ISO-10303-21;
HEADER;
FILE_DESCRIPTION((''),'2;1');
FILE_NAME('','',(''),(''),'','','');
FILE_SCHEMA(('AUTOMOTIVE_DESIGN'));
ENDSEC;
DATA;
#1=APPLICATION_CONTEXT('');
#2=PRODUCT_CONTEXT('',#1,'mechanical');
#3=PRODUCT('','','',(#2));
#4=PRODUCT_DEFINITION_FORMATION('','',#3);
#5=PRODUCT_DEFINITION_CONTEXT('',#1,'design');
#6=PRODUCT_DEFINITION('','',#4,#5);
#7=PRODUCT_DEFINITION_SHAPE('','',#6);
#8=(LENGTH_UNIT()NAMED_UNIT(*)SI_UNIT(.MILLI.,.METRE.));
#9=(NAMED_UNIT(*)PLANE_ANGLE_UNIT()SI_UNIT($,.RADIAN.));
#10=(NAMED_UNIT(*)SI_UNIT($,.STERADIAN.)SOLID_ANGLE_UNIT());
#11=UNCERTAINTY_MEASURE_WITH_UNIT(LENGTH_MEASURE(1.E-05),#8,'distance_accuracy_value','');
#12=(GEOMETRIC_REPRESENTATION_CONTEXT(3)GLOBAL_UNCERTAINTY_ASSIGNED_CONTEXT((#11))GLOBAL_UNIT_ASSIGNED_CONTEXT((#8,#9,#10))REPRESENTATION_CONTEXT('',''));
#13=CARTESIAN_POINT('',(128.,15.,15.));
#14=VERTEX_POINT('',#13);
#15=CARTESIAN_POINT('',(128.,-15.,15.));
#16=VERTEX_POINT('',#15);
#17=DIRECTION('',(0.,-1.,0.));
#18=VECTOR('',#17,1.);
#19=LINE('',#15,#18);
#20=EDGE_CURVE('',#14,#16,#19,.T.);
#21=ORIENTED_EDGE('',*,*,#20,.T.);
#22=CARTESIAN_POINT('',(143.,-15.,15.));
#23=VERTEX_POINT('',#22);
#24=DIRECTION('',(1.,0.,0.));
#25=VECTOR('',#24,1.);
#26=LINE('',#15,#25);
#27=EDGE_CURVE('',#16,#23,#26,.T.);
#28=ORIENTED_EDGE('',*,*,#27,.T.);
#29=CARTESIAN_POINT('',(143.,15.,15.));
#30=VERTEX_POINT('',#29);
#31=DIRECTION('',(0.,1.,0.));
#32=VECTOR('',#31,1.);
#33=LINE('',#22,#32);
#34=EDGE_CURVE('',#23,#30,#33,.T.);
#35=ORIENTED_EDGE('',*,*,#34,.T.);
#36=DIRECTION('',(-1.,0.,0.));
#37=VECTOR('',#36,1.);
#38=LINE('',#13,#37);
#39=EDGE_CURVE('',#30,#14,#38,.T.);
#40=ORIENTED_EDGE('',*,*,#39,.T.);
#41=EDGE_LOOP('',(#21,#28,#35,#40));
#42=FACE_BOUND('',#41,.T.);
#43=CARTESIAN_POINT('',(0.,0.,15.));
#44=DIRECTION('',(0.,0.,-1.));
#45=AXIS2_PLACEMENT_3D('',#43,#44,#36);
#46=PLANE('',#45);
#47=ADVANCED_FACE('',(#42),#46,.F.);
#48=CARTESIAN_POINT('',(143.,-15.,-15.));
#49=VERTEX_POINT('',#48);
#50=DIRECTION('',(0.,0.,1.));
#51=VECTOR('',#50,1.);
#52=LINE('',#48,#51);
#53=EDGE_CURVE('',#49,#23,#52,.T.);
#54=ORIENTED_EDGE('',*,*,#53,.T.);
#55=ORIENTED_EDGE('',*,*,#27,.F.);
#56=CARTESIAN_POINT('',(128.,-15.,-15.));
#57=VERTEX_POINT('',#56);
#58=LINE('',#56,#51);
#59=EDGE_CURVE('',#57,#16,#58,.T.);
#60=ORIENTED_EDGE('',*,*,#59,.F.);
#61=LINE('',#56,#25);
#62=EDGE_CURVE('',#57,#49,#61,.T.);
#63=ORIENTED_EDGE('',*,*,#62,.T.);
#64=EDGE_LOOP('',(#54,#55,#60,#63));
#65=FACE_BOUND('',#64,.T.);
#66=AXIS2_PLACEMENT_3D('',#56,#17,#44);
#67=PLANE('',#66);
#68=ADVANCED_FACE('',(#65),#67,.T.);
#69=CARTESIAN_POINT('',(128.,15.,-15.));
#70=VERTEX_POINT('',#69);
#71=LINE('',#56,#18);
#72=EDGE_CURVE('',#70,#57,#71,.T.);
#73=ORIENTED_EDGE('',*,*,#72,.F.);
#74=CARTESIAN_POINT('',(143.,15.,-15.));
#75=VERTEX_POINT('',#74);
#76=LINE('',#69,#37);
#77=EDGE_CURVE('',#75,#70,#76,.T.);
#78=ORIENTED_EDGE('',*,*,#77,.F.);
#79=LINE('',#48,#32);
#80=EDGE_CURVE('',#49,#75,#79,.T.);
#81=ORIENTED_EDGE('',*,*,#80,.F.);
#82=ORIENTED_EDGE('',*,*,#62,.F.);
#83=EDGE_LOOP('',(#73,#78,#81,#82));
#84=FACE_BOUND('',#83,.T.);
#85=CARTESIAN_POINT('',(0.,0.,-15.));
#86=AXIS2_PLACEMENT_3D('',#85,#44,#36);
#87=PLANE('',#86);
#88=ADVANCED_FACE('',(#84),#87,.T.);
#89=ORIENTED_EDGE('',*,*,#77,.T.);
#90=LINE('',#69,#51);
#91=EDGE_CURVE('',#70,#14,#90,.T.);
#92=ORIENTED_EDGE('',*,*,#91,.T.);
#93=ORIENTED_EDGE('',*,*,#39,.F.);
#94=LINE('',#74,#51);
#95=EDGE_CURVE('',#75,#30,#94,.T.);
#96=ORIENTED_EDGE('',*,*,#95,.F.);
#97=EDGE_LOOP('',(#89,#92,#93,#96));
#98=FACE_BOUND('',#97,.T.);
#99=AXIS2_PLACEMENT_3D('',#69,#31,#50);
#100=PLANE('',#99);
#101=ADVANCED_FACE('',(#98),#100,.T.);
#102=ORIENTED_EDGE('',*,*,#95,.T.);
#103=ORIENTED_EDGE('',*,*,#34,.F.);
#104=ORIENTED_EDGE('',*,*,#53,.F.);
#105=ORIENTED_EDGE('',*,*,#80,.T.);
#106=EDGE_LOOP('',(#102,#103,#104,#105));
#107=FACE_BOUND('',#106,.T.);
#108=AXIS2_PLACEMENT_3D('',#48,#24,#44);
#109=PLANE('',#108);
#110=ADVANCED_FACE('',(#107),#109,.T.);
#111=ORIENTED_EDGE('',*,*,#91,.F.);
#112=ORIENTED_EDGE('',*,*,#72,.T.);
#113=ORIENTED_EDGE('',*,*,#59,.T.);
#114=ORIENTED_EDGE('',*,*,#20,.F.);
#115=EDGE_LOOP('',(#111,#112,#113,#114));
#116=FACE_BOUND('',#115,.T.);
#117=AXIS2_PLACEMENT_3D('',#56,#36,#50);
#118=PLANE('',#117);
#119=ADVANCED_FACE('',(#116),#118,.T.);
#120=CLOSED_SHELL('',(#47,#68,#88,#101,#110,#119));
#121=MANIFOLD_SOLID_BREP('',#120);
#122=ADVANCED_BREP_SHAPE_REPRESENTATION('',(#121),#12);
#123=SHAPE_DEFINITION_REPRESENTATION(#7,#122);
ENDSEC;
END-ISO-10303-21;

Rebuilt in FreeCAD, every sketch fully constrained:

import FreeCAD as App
import Part
import Sketcher
from FreeCAD import Vector


def add_polygon(sketch, points):
    """Adds a closed chain of lines whose ends are joined by coincident constraints."""
    first, n = sketch.GeometryCount, len(points)
    for a, b in zip(points, points[1:] + points[:1]):
        sketch.addGeometry(Part.LineSegment(App.Vector(*a, 0), App.Vector(*b, 0)), False)
    for i in range(n):
        sketch.addConstraint(Sketcher.Constraint("Coincident", first + i, 2, first + (i + 1) % n, 1))

doc = App.newDocument("Part")
params = doc.addObject("Spreadsheet::Sheet", "Params")
for row, (alias, value) in enumerate([
    ("sketch1_width", "15 mm"),
    ("sketch1_height", "30 mm"),
    ("pad1_length", "30 mm"),
], start=1):
    params.set(f"A{row}", alias)
    params.set(f"B{row}", "=" + value)
    params.setAlias(f"B{row}", alias)

body = doc.addObject("PartDesign::Body", "Body")

sketch1 = body.newObject("Sketcher::SketchObject", "Sketch")
sketch1.AttachmentSupport = (doc.getObject("XY_Plane"), [""])
sketch1.MapMode = "FlatFace"
sketch1.AttachmentOffset = App.Placement(Vector(0, 0, 15), App.Rotation())
add_polygon(sketch1, [(128, 15), (128, -15), (143, -15), (143, 15)])
sketch1.addConstraint(Sketcher.Constraint("Vertical", 0))
sketch1.addConstraint(Sketcher.Constraint("Horizontal", 1))
sketch1.addConstraint(Sketcher.Constraint("Vertical", 2))
sketch1.addConstraint(Sketcher.Constraint("Horizontal", 3))
sketch1.addConstraint(Sketcher.Constraint("DistanceX", 1, 1, 1, 2, 15.0))
sketch1.addConstraint(Sketcher.Constraint("DistanceY", 0, 2, 0, 1, 30.0))
sketch1.addConstraint(Sketcher.Constraint("DistanceX", -1, 1, 0, 2, 128.0))
sketch1.addConstraint(Sketcher.Constraint("DistanceY", 0, 2, -1, 1, 15.0))
sketch1.setExpression("Constraints[8]", "Params.sketch1_width")
sketch1.setExpression("Constraints[9]", "Params.sketch1_height")
pad1 = body.newObject("PartDesign::Pad", "Pad")
pad1.Profile = sketch1
pad1.setExpression("Length", "Params.pad1_length")
pad1.Reversed = True

doc.recompute()
